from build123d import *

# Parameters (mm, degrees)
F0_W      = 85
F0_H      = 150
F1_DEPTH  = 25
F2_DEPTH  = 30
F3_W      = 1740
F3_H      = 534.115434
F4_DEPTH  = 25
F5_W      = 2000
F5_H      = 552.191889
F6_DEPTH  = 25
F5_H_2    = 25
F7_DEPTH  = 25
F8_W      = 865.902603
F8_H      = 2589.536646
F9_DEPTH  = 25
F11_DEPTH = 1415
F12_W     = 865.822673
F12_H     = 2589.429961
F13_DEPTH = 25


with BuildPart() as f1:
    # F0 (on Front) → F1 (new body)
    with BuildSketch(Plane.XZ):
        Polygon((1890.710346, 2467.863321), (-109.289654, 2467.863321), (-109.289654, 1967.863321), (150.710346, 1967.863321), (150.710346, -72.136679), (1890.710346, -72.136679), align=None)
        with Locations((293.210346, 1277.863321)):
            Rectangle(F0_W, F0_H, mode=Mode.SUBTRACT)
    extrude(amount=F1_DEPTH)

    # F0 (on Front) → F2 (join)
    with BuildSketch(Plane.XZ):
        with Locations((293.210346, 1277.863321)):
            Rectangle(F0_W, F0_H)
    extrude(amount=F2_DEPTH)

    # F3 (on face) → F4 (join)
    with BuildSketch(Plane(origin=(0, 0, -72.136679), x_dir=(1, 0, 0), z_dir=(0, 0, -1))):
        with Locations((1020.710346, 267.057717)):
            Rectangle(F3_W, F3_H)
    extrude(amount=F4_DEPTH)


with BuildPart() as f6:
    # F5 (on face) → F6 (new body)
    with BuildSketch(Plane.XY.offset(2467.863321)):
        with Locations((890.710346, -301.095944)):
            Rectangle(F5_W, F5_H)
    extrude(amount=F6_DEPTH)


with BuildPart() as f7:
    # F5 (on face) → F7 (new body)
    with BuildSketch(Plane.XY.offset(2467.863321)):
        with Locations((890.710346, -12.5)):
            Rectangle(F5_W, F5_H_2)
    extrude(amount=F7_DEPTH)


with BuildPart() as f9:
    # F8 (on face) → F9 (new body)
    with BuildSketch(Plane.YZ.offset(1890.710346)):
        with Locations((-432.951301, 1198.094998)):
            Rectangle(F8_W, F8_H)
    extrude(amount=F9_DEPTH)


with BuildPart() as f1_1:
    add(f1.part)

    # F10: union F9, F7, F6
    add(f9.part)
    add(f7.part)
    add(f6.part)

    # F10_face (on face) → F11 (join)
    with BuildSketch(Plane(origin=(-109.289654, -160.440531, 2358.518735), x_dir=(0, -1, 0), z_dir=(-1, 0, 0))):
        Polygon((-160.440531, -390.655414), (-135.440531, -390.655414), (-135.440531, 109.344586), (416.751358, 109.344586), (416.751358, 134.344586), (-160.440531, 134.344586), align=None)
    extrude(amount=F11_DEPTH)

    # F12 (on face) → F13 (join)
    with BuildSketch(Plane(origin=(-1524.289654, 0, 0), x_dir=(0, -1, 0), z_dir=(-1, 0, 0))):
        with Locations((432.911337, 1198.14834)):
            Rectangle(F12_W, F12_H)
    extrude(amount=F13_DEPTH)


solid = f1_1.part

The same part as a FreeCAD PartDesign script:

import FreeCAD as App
import Part
import Sketcher

V = App.Vector
Q = App.Units.Quantity


def add_polygon(sketch, points):
    """Adds a closed chain of lines whose ends are joined by coincident constraints."""
    first, n = sketch.GeometryCount, len(points)
    for a, b in zip(points, points[1:] + points[:1]):
        sketch.addGeometry(Part.LineSegment(App.Vector(*a, 0), App.Vector(*b, 0)), False)
    for i in range(n):
        sketch.addConstraint(Sketcher.Constraint("Coincident", first + i, 2, first + (i + 1) % n, 1))

doc = App.newDocument("Part")
body = doc.addObject("PartDesign::Body", "Body")

# Sketch on XZ plane
sketch1 = body.newObject("Sketcher::SketchObject", "Sketch")
sketch1.AttachmentSupport = (doc.getObject("XZ_Plane"), [""])
sketch1.MapMode = "FlatFace"
add_polygon(sketch1, [(1891, 2468), (-109, 2468), (-109, 1968), (151, 1968), (151, -72), (1891, -72)])  # lines 0-5
add_polygon(sketch1, [(336, 1203), (251, 1203), (251, 1353), (336, 1353)])  # lines 6-9
sketch1.addConstraint([
    Sketcher.Constraint("Horizontal", 0),
    Sketcher.Constraint("Vertical", 1),
    Sketcher.Constraint("Horizontal", 2),
    Sketcher.Constraint("Vertical", 3),
    Sketcher.Constraint("Horizontal", 4),
    Sketcher.Constraint("Vertical", 5),
    Sketcher.Constraint("Horizontal", 6),
    Sketcher.Constraint("Vertical", 7),
    Sketcher.Constraint("Horizontal", 8),
    Sketcher.Constraint("Vertical", 9),
    Sketcher.Constraint("DistanceX", 0, 2, 0, 1, Q("2000 mm")),
    Sketcher.Constraint("DistanceX", 2, 1, 2, 2, Q("260 mm")),
    Sketcher.Constraint("DistanceX", 6, 2, 6, 1, Q("85 mm")),
    Sketcher.Constraint("DistanceY", 1, 2, 1, 1, Q("500 mm")),
    Sketcher.Constraint("DistanceY", 3, 2, 3, 1, Q("2040 mm")),
    Sketcher.Constraint("DistanceY", 7, 1, 7, 2, Q("150 mm")),
    Sketcher.Constraint("DistanceX", 2, 2, 6, 2, Q("100 mm")),
    Sketcher.Constraint("DistanceY", 6, 2, 2, 2, Q("765 mm")),
    Sketcher.Constraint("DistanceY", -1, 1, 0, 2, Q("2467.863321 mm")),
    Sketcher.Constraint("DistanceX", 0, 2, -1, 1, Q("109.289654 mm")),
])
pad1 = body.newObject("PartDesign::Pad", "Pad")
pad1.Profile = sketch1
pad1.Length = 25

# Sketch on XZ plane
sketch2 = body.newObject("Sketcher::SketchObject", "Sketch001")
sketch2.AttachmentSupport = (doc.getObject("XZ_Plane"), [""])
sketch2.MapMode = "FlatFace"
add_polygon(sketch2, [(251, 1353), (251, 1203), (336, 1203), (336, 1353)])  # lines 0-3
sketch2.addConstraint([
    Sketcher.Constraint("Vertical", 0),
    Sketcher.Constraint("Horizontal", 1),
    Sketcher.Constraint("Vertical", 2),
    Sketcher.Constraint("Horizontal", 3),
    Sketcher.Constraint("DistanceX", 1, 1, 1, 2, Q("85 mm")),
    Sketcher.Constraint("DistanceY", 0, 2, 0, 1, Q("150 mm")),
    Sketcher.Constraint("DistanceY", -1, 1, 0, 2, Q("1202.863321 mm")),
    Sketcher.Constraint("DistanceX", -1, 1, 0, 2, Q("250.710346 mm")),
])
pad2 = body.newObject("PartDesign::Pad", "Pad001")
pad2.Profile = sketch2
pad2.Length = 30

# Sketch on XY plane
sketch3 = body.newObject("Sketcher::SketchObject", "Sketch002")
sketch3.AttachmentSupport = (doc.getObject("XY_Plane"), [""])
sketch3.MapMode = "FlatFace"
sketch3.AttachmentOffset = App.Placement(V(0, 0, -72.136679), App.Rotation())
add_polygon(sketch3, [(151, -534), (151, 0), (1891, 0), (1891, -534)])  # lines 0-3
sketch3.addConstraint([
    Sketcher.Constraint("Vertical", 0),
    Sketcher.Constraint("Horizontal", 1),
    Sketcher.Constraint("Vertical", 2),
    Sketcher.Constraint("Horizontal", 3),
    Sketcher.Constraint("PointOnObject", 0, 2, -1),
    Sketcher.Constraint("DistanceX", 1, 1, 1, 2, Q("1740 mm")),
    Sketcher.Constraint("DistanceY", 0, 1, 0, 2, Q("534.115434 mm")),
    Sketcher.Constraint("DistanceX", -1, 1, 0, 2, Q("150.710346 mm")),
])
pad3 = body.newObject("PartDesign::Pad", "Pad002")
pad3.Profile = sketch3
pad3.Length = 25
pad3.Reversed = True
body2 = doc.addObject("PartDesign::Body", "Body001")

# Sketch on XY plane
sketch4 = body2.newObject("Sketcher::SketchObject", "Sketch003")
sketch4.AttachmentSupport = (doc.getObject("XY_Plane001"), [""])
sketch4.MapMode = "FlatFace"
sketch4.AttachmentOffset = App.Placement(V(0, 0, 2467.863321), App.Rotation())
add_polygon(sketch4, [(-109, -25), (-109, -577), (1891, -577), (1891, -25)])  # lines 0-3
sketch4.addConstraint([
    Sketcher.Constraint("Vertical", 0),
    Sketcher.Constraint("Horizontal", 1),
    Sketcher.Constraint("Vertical", 2),
    Sketcher.Constraint("Horizontal", 3),
    Sketcher.Constraint("DistanceX", 1, 1, 1, 2, Q("2000 mm")),
    Sketcher.Constraint("DistanceY", 2, 2, -1, 1, Q("25 mm")),
    Sketcher.Constraint("DistanceY", 0, 2, 0, 1, Q("552.191889 mm")),
    Sketcher.Constraint("DistanceX", 0, 2, -1, 1, Q("109.289654 mm")),
])
pad4 = body2.newObject("PartDesign::Pad", "Pad003")
pad4.Profile = sketch4
pad4.Length = 25
body3 = doc.addObject("PartDesign::Body", "Body002")

# Sketch on XY plane
sketch5 = body3.newObject("Sketcher::SketchObject", "Sketch004")
sketch5.AttachmentSupport = (doc.getObject("XY_Plane002"), [""])
sketch5.MapMode = "FlatFace"
sketch5.AttachmentOffset = App.Placement(V(0, 0, 2467.863321), App.Rotation())
add_polygon(sketch5, [(-109, 0), (-109, -25), (1891, -25), (1891, 0)])  # lines 0-3
sketch5.addConstraint([
    Sketcher.Constraint("Vertical", 0),
    Sketcher.Constraint("Horizontal", 1),
    Sketcher.Constraint("Vertical", 2),
    Sketcher.Constraint("Horizontal", 3),
    Sketcher.Constraint("PointOnObject", 2, 2, -1),
    Sketcher.Constraint("DistanceX", 1, 1, 1, 2, Q("2000 mm")),
    Sketcher.Constraint("DistanceY", 0, 2, 0, 1, Q("25 mm")),
    Sketcher.Constraint("DistanceX", 0, 2, -1, 1, Q("109.289654 mm")),
])
pad5 = body3.newObject("PartDesign::Pad", "Pad004")
pad5.Profile = sketch5
pad5.Length = 25
body4 = doc.addObject("PartDesign::Body", "Body003")

# Sketch on YZ plane
sketch6 = body4.newObject("Sketcher::SketchObject", "Sketch005")
sketch6.AttachmentSupport = (doc.getObject("YZ_Plane003"), [""])
sketch6.MapMode = "FlatFace"
sketch6.AttachmentOffset = App.Placement(V(0, 0, 1890.710346), App.Rotation())
add_polygon(sketch6, [(-866, 2493), (-866, -97), (0, -97), (0, 2493)])  # lines 0-3
sketch6.addConstraint([
    Sketcher.Constraint("Vertical", 0),
    Sketcher.Constraint("Horizontal", 1),
    Sketcher.Constraint("Vertical", 2),
    Sketcher.Constraint("Horizontal", 3),
    Sketcher.Constraint("PointOnObject", 1, 2, -2),
    Sketcher.Constraint("DistanceX", 1, 1, 1, 2, Q("865.902603 mm")),
    Sketcher.Constraint("DistanceY", 0, 2, 0, 1, Q("2589.536646 mm")),
    Sketcher.Constraint("DistanceY", -1, 1, 2, 2, Q("2492.863321 mm")),
])
pad6 = body4.newObject("PartDesign::Pad", "Pad005")
pad6.Profile = sketch6
pad6.Length = 25
doc.recompute()

boolean = body.newObject("PartDesign::Boolean", "Boolean")
boolean.Type = "Fuse"
boolean.addObjects([body4])
doc.recompute()

boolean2 = body.newObject("PartDesign::Boolean", "Boolean001")
boolean2.Type = "Fuse"
boolean2.addObjects([body3])
doc.recompute()

boolean3 = body.newObject("PartDesign::Boolean", "Boolean002")
boolean3.Type = "Fuse"
boolean3.addObjects([body2])

# Sketch on YZ plane
sketch7 = body.newObject("Sketcher::SketchObject", "Sketch006")
sketch7.AttachmentSupport = (doc.getObject("YZ_Plane"), [""])
sketch7.MapMode = "FlatFace"
sketch7.AttachmentOffset = App.Placement(V(0, 0, -109.289654), App.Rotation())
add_polygon(sketch7, [(0, 1968), (-25, 1968), (-25, 2468), (-577, 2468), (-577, 2493), (0, 2493)])  # lines 0-5
sketch7.addConstraint([
    Sketcher.Constraint("Horizontal", 0),
    Sketcher.Constraint("Vertical", 1),
    Sketcher.Constraint("Horizontal", 2),
    Sketcher.Constraint("Vertical", 3),
    Sketcher.Constraint("Horizontal", 4),
    Sketcher.Constraint("Vertical", 5),
    Sketcher.Constraint("PointOnObject", 4, 2, -2),
    Sketcher.Constraint("Equal", 0, 3),
    Sketcher.Constraint("DistanceX", 0, 2, 0, 1, Q("25 mm")),
    Sketcher.Constraint("DistanceY", 1, 1, 1, 2, Q("500 mm")),
    Sketcher.Constraint("DistanceX", 2, 2, 2, 1, Q("552.191889 mm")),
    Sketcher.Constraint("DistanceY", -1, 1, 0, 2, Q("1967.863321 mm")),
])
pad7 = body.newObject("PartDesign::Pad", "Pad006")
pad7.Profile = sketch7
pad7.Length = 1415
pad7.Reversed = True

# Sketch on YZ plane
sketch8 = body.newObject("Sketcher::SketchObject", "Sketch007")
sketch8.AttachmentSupport = (doc.getObject("YZ_Plane"), [""])
sketch8.MapMode = "FlatFace"
sketch8.AttachmentOffset = App.Placement(V(0, 0, -1524.289654), App.Rotation())
add_polygon(sketch8, [(0, 2493), (0, -97), (-866, -97), (-866, 2493)])  # lines 0-3
sketch8.addConstraint([
    Sketcher.Constraint("Vertical", 0),
    Sketcher.Constraint("Horizontal", 1),
    Sketcher.Constraint("Vertical", 2),
    Sketcher.Constraint("Horizontal", 3),
    Sketcher.Constraint("PointOnObject", 0, 2, -2),
    Sketcher.Constraint("DistanceY", 0, 2, 0, 1, Q("2589.429961 mm")),
    Sketcher.Constraint("DistanceX", 1, 2, 1, 1, Q("865.822673 mm")),
    Sketcher.Constraint("DistanceY", 0, 2, -1, 1, Q("96.566641 mm")),
])
pad8 = body.newObject("PartDesign::Pad", "Pad007")
pad8.Profile = sketch8
pad8.Length = 25
pad8.Reversed = True

doc.recompute()
